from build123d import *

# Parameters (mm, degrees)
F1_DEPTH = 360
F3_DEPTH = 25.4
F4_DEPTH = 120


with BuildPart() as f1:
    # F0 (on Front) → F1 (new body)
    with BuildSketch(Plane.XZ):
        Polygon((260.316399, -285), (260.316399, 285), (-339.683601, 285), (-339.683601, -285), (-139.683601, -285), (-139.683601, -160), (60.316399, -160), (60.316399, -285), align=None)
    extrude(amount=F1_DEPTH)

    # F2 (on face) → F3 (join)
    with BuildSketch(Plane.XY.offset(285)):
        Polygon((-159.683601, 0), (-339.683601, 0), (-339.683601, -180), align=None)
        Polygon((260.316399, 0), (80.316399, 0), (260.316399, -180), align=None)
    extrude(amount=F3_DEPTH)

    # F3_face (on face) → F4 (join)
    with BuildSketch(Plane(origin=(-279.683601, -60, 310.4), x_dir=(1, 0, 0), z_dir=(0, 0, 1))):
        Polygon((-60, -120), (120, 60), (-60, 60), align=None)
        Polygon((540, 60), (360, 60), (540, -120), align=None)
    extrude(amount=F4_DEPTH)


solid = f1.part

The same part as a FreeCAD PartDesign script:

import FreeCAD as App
import Part
import Sketcher

V = App.Vector
Q = App.Units.Quantity

doc = App.newDocument("Part")
params = doc.addObject("Spreadsheet::Sheet", "Params")
for row, (alias, value) in enumerate([
    ("sketch1_width", "600 mm"),
    ("sketch1_height", "570 mm"),
    ("sketch1_height2", "125 mm"),
    ("pad1_length", "360 mm"),
    ("sketch2_width", "180 mm"),
    ("pad2_length", "25.4 mm"),
    ("sketch3_width", "180 mm"),
    ("pad3_length", "120 mm"),
], start=1):
    params.set(f"A{row}", alias)
    params.set(f"B{row}", "=" + value)
    params.setAlias(f"B{row}", alias)

body = doc.addObject("PartDesign::Body", "Body")

# Sketch on XZ plane
sketch1 = body.newObject("Sketcher::SketchObject", "Sketch")
sketch1.AttachmentSupport = (doc.getObject("XZ_Plane"), [""])
sketch1.MapMode = "FlatFace"
sketch1.addGeometry([
    Part.LineSegment(V(260, -285, 0), V(260, 285, 0)),  # 0
    Part.LineSegment(V(260, 285, 0), V(-340, 285, 0)),  # 1
    Part.LineSegment(V(-340, 285, 0), V(-340, -285, 0)),  # 2
    Part.LineSegment(V(-340, -285, 0), V(-140, -285, 0)),  # 3
    Part.LineSegment(V(-140, -285, 0), V(-140, -160, 0)),  # 4
    Part.LineSegment(V(-140, -160, 0), V(60, -160, 0)),  # 5
    Part.LineSegment(V(60, -160, 0), V(60, -285, 0)),  # 6
    Part.LineSegment(V(60, -285, 0), V(260, -285, 0)),  # 7
], False)
sketch1.addConstraint([
    Sketcher.Constraint("Coincident", 0, 2, 1, 1),
    Sketcher.Constraint("Coincident", 1, 2, 2, 1),
    Sketcher.Constraint("Coincident", 2, 2, 3, 1),
    Sketcher.Constraint("Coincident", 3, 2, 4, 1),
    Sketcher.Constraint("Coincident", 4, 2, 5, 1),
    Sketcher.Constraint("Coincident", 5, 2, 6, 1),
    Sketcher.Constraint("Coincident", 6, 2, 7, 1),
    Sketcher.Constraint("Coincident", 7, 2, 0, 1),
    Sketcher.Constraint("Vertical", 0),
    Sketcher.Constraint("Horizontal", 1),
    Sketcher.Constraint("Vertical", 2),
    Sketcher.Constraint("Horizontal", 3),
    Sketcher.Constraint("Vertical", 4),
    Sketcher.Constraint("Horizontal", 5),
    Sketcher.Constraint("Vertical", 6),
    Sketcher.Constraint("Horizontal", 7),
    Sketcher.Constraint("Horizontal", 3, 2, 6, 2),
    Sketcher.Constraint("Equal", 3, 5),
    Sketcher.Constraint("Equal", 5, 7),
    Sketcher.Constraint("DistanceX", 1, 2, 1, 1, Q("600 mm")),
    Sketcher.Constraint("DistanceY", 0, 1, 0, 2, Q("570 mm")),
    Sketcher.Constraint("DistanceY", 4, 1, 4, 2, Q("125 mm")),
    Sketcher.Constraint("DistanceY", -1, 1, 0, 2, Q("285 mm")),
    Sketcher.Constraint("DistanceX", -1, 1, 0, 2, Q("260.316399 mm")),
])
sketch1.setExpression("Constraints[19]", "Params.sketch1_width")
sketch1.setExpression("Constraints[20]", "Params.sketch1_height")
sketch1.setExpression("Constraints[21]", "Params.sketch1_height2")
pad1 = body.newObject("PartDesign::Pad", "Pad")
pad1.Profile = sketch1
pad1.setExpression("Length", "Params.pad1_length")

# Sketch on XY plane
sketch2 = body.newObject("Sketcher::SketchObject", "Sketch001")
sketch2.AttachmentSupport = (doc.getObject("XY_Plane"), [""])
sketch2.MapMode = "FlatFace"
sketch2.AttachmentOffset = App.Placement(V(0, 0, 285), App.Rotation())
sketch2.addGeometry([
    Part.LineSegment(V(-160, 0, 0), V(-340, 0, 0)),  # 0
    Part.LineSegment(V(-340, 0, 0), V(-340, -180, 0)),  # 1
    Part.LineSegment(V(-340, -180, 0), V(-160, 0, 0)),  # 2
    Part.LineSegment(V(260, 0, 0), V(80, 0, 0)),  # 3
    Part.LineSegment(V(80, 0, 0), V(260, -180, 0)),  # 4
    Part.LineSegment(V(260, -180, 0), V(260, 0, 0)),  # 5
], False)
sketch2.addConstraint([
    Sketcher.Constraint("Coincident", 0, 2, 1, 1),
    Sketcher.Constraint("Coincident", 1, 2, 2, 1),
    Sketcher.Constraint("Coincident", 2, 2, 0, 1),
    Sketcher.Constraint("Coincident", 3, 2, 4, 1),
    Sketcher.Constraint("Coincident", 4, 2, 5, 1),
    Sketcher.Constraint("Coincident", 5, 2, 3, 1),
    Sketcher.Constraint("Horizontal", 0),
    Sketcher.Constraint("Vertical", 1),
    Sketcher.Constraint("Horizontal", 3),
    Sketcher.Constraint("Vertical", 5),
    Sketcher.Constraint("PointOnObject", 0, 2, -1),
    Sketcher.Constraint("PointOnObject", 3, 2, -1),
    Sketcher.Constraint("Perpendicular", 2, 4),
    Sketcher.Constraint("Horizontal", 1, 2, 4, 2),
    Sketcher.Constraint("Equal", 0, 3),
    Sketcher.Constraint("DistanceX", 0, 2, 0, 1, Q("180 mm")),
    Sketcher.Constraint("DistanceX", 2, 2, 3, 2, Q("240 mm")),
    Sketcher.Constraint("DistanceX", 0, 2, -1, 1, Q("339.683601 mm")),
])
sketch2.setExpression("Constraints[15]", "Params.sketch2_width")
pad2 = body.newObject("PartDesign::Pad", "Pad001")
pad2.Profile = sketch2
pad2.setExpression("Length", "Params.pad2_length")

# Sketch on XY plane
sketch3 = body.newObject("Sketcher::SketchObject", "Sketch002")
sketch3.AttachmentSupport = (doc.getObject("XY_Plane"), [""])
sketch3.MapMode = "FlatFace"
sketch3.AttachmentOffset = App.Placement(V(0, 0, 310.4), App.Rotation())
sketch3.addGeometry([
    Part.LineSegment(V(-340, -180, 0), V(-160, 0, 0)),  # 0
    Part.LineSegment(V(-160, 0, 0), V(-340, 0, 0)),  # 1
    Part.LineSegment(V(-340, 0, 0), V(-340, -180, 0)),  # 2
    Part.LineSegment(V(260, 0, 0), V(80, 0, 0)),  # 3
    Part.LineSegment(V(80, 0, 0), V(260, -180, 0)),  # 4
    Part.LineSegment(V(260, -180, 0), V(260, 0, 0)),  # 5
], False)
sketch3.addConstraint([
    Sketcher.Constraint("Coincident", 0, 2, 1, 1),
    Sketcher.Constraint("Coincident", 1, 2, 2, 1),
    Sketcher.Constraint("Coincident", 2, 2, 0, 1),
    Sketcher.Constraint("Coincident", 3, 2, 4, 1),
    Sketcher.Constraint("Coincident", 4, 2, 5, 1),
    Sketcher.Constraint("Coincident", 5, 2, 3, 1),
    Sketcher.Constraint("Horizontal", 1),
    Sketcher.Constraint("Vertical", 2),
    Sketcher.Constraint("Horizontal", 3),
    Sketcher.Constraint("Vertical", 5),
    Sketcher.Constraint("PointOnObject", 0, 2, -1),
    Sketcher.Constraint("PointOnObject", 3, 2, -1),
    Sketcher.Constraint("Perpendicular", 0, 4),
    Sketcher.Constraint("Horizontal", 2, 2, 4, 2),
    Sketcher.Constraint("Equal", 1, 3),
    Sketcher.Constraint("DistanceX", 1, 2, 1, 1, Q("180 mm")),
    Sketcher.Constraint("DistanceX", 0, 2, 3, 2, Q("240 mm")),
    Sketcher.Constraint("DistanceX", 0, 2, -1, 1, Q("159.683601 mm")),
])
sketch3.setExpression("Constraints[15]", "Params.sketch3_width")
pad3 = body.newObject("PartDesign::Pad", "Pad002")
pad3.Profile = sketch3
pad3.setExpression("Length", "Params.pad3_length")

doc.recompute()
